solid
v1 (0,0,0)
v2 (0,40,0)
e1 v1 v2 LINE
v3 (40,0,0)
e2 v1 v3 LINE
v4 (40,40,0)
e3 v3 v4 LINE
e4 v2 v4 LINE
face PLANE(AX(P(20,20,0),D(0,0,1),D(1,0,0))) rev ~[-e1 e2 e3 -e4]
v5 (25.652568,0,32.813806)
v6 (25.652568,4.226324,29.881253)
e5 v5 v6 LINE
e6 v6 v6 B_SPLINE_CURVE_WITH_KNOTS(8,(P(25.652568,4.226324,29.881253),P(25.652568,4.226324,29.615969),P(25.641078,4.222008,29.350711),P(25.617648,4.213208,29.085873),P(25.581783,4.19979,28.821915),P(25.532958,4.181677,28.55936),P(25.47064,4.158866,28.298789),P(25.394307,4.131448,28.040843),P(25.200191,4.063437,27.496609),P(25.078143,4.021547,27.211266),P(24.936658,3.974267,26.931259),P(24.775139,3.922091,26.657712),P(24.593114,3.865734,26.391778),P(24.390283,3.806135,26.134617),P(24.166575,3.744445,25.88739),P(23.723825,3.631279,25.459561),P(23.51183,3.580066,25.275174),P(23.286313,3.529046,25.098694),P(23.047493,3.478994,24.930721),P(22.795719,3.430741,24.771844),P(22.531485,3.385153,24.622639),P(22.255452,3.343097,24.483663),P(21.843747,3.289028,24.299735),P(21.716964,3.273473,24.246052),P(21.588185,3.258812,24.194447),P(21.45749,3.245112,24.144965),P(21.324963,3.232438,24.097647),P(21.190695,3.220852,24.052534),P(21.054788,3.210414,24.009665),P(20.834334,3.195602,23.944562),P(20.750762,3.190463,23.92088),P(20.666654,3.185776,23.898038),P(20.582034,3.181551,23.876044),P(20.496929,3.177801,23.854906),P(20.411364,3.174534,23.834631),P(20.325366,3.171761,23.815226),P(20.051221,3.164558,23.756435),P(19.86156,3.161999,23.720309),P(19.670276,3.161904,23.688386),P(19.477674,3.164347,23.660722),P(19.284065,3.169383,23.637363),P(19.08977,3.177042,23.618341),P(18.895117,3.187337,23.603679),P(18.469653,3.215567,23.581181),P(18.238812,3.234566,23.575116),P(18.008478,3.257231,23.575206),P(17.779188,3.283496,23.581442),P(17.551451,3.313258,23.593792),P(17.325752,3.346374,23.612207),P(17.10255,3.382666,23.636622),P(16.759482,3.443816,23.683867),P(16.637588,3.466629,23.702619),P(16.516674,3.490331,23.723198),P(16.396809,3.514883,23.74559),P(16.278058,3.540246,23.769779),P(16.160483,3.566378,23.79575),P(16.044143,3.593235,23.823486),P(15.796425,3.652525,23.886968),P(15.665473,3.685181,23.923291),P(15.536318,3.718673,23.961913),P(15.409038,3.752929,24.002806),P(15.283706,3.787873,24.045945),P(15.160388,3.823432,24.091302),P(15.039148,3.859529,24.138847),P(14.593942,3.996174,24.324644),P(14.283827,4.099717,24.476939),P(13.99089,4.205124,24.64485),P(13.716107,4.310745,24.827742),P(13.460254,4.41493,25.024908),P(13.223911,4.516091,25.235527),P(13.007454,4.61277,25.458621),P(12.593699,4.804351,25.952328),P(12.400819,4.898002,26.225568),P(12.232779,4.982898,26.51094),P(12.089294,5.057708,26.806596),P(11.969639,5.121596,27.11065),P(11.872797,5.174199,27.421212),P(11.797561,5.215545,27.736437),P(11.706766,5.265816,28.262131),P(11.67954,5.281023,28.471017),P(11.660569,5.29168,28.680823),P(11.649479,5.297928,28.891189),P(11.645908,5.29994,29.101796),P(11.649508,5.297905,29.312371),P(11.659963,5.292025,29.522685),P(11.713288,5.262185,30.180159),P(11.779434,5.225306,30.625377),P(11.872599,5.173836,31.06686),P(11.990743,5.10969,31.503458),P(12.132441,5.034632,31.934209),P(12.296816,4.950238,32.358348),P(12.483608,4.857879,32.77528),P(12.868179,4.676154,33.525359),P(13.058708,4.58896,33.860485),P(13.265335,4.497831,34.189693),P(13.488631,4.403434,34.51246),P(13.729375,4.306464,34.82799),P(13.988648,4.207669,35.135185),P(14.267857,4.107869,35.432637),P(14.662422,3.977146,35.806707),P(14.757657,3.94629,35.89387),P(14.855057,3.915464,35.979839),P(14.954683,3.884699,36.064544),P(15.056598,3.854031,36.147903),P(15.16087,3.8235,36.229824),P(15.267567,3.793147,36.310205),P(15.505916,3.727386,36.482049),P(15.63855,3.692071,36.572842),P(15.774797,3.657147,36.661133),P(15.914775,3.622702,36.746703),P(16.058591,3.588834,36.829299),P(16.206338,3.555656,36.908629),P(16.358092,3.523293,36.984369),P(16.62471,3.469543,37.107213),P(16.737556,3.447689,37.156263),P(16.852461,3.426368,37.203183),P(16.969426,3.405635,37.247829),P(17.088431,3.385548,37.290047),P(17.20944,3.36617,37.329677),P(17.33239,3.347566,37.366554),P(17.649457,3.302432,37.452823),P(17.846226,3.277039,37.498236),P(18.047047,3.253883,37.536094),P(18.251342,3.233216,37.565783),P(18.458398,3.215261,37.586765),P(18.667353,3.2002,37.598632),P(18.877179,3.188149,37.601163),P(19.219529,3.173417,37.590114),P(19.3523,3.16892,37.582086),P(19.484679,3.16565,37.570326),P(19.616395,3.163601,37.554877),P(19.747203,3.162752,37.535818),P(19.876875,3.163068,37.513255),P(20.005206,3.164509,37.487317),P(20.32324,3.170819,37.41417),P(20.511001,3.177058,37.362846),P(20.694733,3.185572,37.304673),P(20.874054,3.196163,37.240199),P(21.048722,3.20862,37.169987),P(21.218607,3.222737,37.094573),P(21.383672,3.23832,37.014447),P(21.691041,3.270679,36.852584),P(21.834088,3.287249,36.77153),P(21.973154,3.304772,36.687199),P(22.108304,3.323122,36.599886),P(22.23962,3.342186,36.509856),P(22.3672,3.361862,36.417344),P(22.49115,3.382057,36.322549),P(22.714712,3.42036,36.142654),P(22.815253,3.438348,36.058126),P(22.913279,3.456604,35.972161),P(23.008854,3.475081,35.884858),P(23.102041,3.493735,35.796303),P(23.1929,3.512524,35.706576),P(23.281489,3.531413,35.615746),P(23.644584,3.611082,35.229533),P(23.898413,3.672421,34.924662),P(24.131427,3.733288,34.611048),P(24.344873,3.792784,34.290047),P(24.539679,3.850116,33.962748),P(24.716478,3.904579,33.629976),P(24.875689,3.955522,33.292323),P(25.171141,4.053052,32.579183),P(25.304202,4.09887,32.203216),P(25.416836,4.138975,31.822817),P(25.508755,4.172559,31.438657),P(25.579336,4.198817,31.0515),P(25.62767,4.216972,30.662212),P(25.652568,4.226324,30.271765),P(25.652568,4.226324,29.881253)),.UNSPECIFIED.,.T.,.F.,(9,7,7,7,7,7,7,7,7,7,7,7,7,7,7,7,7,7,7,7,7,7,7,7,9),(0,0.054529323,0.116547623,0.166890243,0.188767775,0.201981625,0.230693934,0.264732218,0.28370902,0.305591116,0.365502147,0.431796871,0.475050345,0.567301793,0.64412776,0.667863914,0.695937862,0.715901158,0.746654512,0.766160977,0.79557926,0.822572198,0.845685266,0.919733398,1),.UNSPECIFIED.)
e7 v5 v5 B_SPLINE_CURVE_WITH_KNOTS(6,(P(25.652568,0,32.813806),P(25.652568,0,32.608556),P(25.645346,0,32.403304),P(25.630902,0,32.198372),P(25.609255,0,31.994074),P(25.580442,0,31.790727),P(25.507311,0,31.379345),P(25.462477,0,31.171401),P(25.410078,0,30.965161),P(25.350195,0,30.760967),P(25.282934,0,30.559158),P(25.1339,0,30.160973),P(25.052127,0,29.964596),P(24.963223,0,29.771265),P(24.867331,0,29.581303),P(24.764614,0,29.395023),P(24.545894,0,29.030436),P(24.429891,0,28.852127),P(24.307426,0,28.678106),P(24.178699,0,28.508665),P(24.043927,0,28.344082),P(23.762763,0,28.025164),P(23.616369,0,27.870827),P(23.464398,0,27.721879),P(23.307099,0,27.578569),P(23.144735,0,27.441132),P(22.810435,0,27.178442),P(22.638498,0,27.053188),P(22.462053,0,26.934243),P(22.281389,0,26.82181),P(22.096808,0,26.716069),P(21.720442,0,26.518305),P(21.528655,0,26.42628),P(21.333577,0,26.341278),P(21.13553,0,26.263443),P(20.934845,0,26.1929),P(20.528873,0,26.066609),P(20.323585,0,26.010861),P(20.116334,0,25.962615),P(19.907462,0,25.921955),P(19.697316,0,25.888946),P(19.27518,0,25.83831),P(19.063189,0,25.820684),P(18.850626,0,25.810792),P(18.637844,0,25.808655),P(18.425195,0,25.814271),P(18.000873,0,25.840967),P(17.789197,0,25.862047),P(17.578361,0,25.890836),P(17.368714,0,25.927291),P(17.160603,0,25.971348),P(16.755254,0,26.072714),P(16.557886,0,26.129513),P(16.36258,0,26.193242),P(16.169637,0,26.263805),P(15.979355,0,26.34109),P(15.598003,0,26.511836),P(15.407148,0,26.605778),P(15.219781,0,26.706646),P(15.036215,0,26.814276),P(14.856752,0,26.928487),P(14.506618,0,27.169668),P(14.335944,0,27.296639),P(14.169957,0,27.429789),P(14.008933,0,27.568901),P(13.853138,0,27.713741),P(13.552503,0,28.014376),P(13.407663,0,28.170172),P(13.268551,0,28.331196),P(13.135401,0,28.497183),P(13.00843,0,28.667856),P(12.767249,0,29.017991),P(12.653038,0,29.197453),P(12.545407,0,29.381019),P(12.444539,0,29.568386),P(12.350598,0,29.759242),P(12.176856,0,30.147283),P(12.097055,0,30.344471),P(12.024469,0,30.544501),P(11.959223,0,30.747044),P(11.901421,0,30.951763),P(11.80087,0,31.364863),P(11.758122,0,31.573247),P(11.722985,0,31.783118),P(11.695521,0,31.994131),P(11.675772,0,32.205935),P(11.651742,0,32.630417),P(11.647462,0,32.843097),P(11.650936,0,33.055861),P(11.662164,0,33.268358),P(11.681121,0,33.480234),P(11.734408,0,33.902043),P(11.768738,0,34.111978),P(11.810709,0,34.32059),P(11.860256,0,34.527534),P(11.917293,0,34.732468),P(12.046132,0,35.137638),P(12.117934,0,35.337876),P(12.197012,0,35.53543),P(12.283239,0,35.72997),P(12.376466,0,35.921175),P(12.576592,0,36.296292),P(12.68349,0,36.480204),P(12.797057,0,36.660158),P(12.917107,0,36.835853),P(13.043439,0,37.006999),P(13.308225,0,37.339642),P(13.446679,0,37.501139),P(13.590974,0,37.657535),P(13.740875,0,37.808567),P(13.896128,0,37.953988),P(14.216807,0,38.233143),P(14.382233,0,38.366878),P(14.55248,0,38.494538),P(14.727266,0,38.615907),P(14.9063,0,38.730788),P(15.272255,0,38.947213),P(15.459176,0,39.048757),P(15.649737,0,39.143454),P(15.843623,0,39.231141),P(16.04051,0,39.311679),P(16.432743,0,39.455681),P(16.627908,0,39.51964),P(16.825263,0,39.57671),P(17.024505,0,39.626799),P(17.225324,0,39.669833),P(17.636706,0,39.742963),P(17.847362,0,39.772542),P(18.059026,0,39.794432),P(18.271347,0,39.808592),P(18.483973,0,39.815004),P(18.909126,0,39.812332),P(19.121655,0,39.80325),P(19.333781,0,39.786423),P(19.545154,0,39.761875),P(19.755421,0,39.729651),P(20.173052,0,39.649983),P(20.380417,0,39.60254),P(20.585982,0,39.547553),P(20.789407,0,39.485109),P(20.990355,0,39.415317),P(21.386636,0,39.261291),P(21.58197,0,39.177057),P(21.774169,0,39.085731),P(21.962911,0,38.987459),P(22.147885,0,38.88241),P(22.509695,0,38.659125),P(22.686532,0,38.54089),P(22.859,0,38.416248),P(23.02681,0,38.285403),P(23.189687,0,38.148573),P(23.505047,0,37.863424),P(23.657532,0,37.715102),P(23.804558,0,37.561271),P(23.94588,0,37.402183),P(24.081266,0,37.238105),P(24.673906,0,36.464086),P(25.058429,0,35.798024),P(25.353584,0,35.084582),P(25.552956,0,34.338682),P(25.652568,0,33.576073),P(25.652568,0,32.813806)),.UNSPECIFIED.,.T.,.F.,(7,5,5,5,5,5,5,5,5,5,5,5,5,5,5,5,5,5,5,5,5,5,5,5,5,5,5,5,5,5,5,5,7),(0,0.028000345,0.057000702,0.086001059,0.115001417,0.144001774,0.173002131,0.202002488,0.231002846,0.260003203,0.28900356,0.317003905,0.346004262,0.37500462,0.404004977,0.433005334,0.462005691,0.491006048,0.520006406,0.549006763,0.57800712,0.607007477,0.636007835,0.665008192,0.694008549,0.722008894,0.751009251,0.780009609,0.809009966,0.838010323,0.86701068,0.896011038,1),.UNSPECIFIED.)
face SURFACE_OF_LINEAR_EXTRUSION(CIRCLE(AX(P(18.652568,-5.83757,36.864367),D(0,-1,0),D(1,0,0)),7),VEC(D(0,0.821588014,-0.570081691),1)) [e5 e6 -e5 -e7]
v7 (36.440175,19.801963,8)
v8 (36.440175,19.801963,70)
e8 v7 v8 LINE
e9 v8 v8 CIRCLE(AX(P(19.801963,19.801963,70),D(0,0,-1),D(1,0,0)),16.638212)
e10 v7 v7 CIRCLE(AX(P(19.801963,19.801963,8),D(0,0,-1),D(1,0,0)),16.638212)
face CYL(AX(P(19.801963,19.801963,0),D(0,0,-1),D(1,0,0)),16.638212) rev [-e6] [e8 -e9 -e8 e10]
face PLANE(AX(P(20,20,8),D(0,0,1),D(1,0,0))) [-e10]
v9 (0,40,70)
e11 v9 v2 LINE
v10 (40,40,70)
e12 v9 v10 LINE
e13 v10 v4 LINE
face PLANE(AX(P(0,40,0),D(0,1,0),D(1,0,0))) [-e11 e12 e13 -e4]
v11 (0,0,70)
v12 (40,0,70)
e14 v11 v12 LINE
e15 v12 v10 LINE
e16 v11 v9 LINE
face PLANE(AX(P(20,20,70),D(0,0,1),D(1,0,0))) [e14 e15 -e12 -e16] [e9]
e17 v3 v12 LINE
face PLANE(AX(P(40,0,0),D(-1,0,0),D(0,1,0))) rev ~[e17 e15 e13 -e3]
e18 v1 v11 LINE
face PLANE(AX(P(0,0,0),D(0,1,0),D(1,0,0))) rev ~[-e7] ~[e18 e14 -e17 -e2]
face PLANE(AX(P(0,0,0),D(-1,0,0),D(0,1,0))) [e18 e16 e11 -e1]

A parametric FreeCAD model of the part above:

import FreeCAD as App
import Part
import Sketcher
Q = App.Units.Quantity

doc = App.newDocument("Part")
params = doc.addObject("Spreadsheet::Sheet", "Params")
for row, (alias, value) in enumerate([
    ("sketch1_width", "40 mm"),
    ("pad1_length", "70 mm"),
    ("pocket1_length", "80 mm"),
    ("sketch3_width", "40 mm"),
    ("pad2_length", "8 mm"),
    ("sketch4_diameter", "14 mm"),
], start=1):
    params.set(f"A{row}", alias)
    params.set(f"B{row}", "=" + value)
    params.setAlias(f"B{row}", alias)

body = doc.addObject("PartDesign::Body", "Body")

# Sketch on XY plane
sketch1 = body.newObject("Sketcher::SketchObject", "Sketch")
sketch1.AttachmentSupport = (doc.getObject("XY_Plane"), [""])
sketch1.MapMode = "FlatFace"
sketch1.addGeometry([
    Part.LineSegment(App.Vector(0, 40, 0), App.Vector(0, 0, 0)),
    Part.LineSegment(App.Vector(0, 0, 0), App.Vector(40, 0, 0)),
    Part.LineSegment(App.Vector(40, 0, 0), App.Vector(40, 40, 0)),
    Part.LineSegment(App.Vector(40, 40, 0), App.Vector(0, 40, 0)),
], False)
sketch1.addConstraint([
    Sketcher.Constraint("Coincident", 0, 2, 1, 1),
    Sketcher.Constraint("Coincident", 1, 2, 2, 1),
    Sketcher.Constraint("Coincident", 2, 2, 3, 1),
    Sketcher.Constraint("Coincident", 3, 2, 0, 1),
    Sketcher.Constraint("Vertical", 0),
    Sketcher.Constraint("Horizontal", 1),
    Sketcher.Constraint("Vertical", 2),
    Sketcher.Constraint("Horizontal", 3),
    Sketcher.Constraint("Coincident", 0, 2, -1, 1),
    Sketcher.Constraint("Equal", 3, 0),
    Sketcher.Constraint("DistanceX", 1, 1, 1, 2, Q("40 mm")),
])
sketch1.setExpression("Constraints[10]", "Params.sketch1_width")
pad1 = body.newObject("PartDesign::Pad", "Pad")
pad1.Profile = sketch1
pad1.setExpression("Length", "Params.pad1_length")

# Sketch on XY plane
sketch2 = body.newObject("Sketcher::SketchObject", "Sketch001")
sketch2.AttachmentSupport = (doc.getObject("XY_Plane"), [""])
sketch2.MapMode = "FlatFace"
sketch2.addGeometry(Part.Circle(App.Vector(19.801963, 19.801963, 0), App.Vector(0, 0, 1), 16.638212), False)
sketch2.addConstraint([
    Sketcher.Constraint("Diameter", 0, Q("33.276424 mm")),
    Sketcher.Constraint("DistanceX", -1, 1, 0, 3, Q("19.801963 mm")),
    Sketcher.Constraint("DistanceY", -1, 1, 0, 3, Q("19.801963 mm")),
])
pocket1 = body.newObject("PartDesign::Pocket", "Pocket")
pocket1.Profile = sketch2
pocket1.setExpression("Length", "Params.pocket1_length")
pocket1.Reversed = True

# Sketch on XY plane
sketch3 = body.newObject("Sketcher::SketchObject", "Sketch002")
sketch3.AttachmentSupport = (doc.getObject("XY_Plane"), [""])
sketch3.MapMode = "FlatFace"
sketch3.addGeometry([
    Part.LineSegment(App.Vector(0, 40, 0), App.Vector(0, 0, 0)),
    Part.LineSegment(App.Vector(0, 0, 0), App.Vector(40, 0, 0)),
    Part.LineSegment(App.Vector(40, 0, 0), App.Vector(40, 40, 0)),
    Part.LineSegment(App.Vector(40, 40, 0), App.Vector(0, 40, 0)),
], False)
sketch3.addConstraint([
    Sketcher.Constraint("Coincident", 0, 2, 1, 1),
    Sketcher.Constraint("Coincident", 1, 2, 2, 1),
    Sketcher.Constraint("Coincident", 2, 2, 3, 1),
    Sketcher.Constraint("Coincident", 3, 2, 0, 1),
    Sketcher.Constraint("Vertical", 0),
    Sketcher.Constraint("Horizontal", 1),
    Sketcher.Constraint("Vertical", 2),
    Sketcher.Constraint("Horizontal", 3),
    Sketcher.Constraint("Coincident", 0, 2, -1, 1),
    Sketcher.Constraint("Equal", 3, 0),
    Sketcher.Constraint("DistanceX", 1, 1, 1, 2, Q("40 mm")),
])
sketch3.setExpression("Constraints[10]", "Params.sketch3_width")
pad2 = body.newObject("PartDesign::Pad", "Pad001")
pad2.Profile = sketch3
pad2.setExpression("Length", "Params.pad2_length")

# Sketch on XZ plane
sketch4 = body.newObject("Sketcher::SketchObject", "Sketch003")
sketch4.AttachmentSupport = (doc.getObject("XZ_Plane"), [""])
sketch4.MapMode = "FlatFace"
sketch4.addGeometry(Part.Circle(App.Vector(18.652568, 32.813806, 0), App.Vector(0, 0, 1), 7), False)
sketch4.addConstraint([
    Sketcher.Constraint("Diameter", 0, Q("14 mm")),
    Sketcher.Constraint("DistanceX", -1, 1, 0, 3, Q("18.652568 mm")),
    Sketcher.Constraint("DistanceY", -1, 1, 0, 3, Q("32.813806 mm")),
])
sketch4.setExpression("Constraints[0]", "Params.sketch4_diameter")

# Sketch on an angled plane
sketch5 = body.newObject("Sketcher::SketchObject", "Sketch004")
sketch5.Placement = App.Placement(App.Vector(0, 10.701398, 15.422597), App.Rotation(App.Vector(0, -0.821588014, 0.570081691), App.Vector(0.999999999, 0, 0), App.Vector(0, 0.570081691, 0.821588014), "ZXY"))
sketch5.addGeometry(Part.LineSegment(App.Vector(20.130489, 0, 0), App.Vector(6.477303, 0, 0)), False)
sketch5.addConstraint([
    Sketcher.Constraint("Horizontal", 0),
    Sketcher.Constraint("PointOnObject", 0, 1, -1),
    Sketcher.Constraint("DistanceX", 0, 2, 0, 1, Q("13.653186 mm")),
    Sketcher.Constraint("DistanceX", -1, 1, 0, 1, Q("20.130489 mm")),
])
doc.recompute()

subtractivepipe = body.newObject("PartDesign::SubtractivePipe", "SubtractivePipe")
subtractivepipe.Profile = sketch4
subtractivepipe.Spine = (sketch5, ["Edge1"])

doc.recompute()
